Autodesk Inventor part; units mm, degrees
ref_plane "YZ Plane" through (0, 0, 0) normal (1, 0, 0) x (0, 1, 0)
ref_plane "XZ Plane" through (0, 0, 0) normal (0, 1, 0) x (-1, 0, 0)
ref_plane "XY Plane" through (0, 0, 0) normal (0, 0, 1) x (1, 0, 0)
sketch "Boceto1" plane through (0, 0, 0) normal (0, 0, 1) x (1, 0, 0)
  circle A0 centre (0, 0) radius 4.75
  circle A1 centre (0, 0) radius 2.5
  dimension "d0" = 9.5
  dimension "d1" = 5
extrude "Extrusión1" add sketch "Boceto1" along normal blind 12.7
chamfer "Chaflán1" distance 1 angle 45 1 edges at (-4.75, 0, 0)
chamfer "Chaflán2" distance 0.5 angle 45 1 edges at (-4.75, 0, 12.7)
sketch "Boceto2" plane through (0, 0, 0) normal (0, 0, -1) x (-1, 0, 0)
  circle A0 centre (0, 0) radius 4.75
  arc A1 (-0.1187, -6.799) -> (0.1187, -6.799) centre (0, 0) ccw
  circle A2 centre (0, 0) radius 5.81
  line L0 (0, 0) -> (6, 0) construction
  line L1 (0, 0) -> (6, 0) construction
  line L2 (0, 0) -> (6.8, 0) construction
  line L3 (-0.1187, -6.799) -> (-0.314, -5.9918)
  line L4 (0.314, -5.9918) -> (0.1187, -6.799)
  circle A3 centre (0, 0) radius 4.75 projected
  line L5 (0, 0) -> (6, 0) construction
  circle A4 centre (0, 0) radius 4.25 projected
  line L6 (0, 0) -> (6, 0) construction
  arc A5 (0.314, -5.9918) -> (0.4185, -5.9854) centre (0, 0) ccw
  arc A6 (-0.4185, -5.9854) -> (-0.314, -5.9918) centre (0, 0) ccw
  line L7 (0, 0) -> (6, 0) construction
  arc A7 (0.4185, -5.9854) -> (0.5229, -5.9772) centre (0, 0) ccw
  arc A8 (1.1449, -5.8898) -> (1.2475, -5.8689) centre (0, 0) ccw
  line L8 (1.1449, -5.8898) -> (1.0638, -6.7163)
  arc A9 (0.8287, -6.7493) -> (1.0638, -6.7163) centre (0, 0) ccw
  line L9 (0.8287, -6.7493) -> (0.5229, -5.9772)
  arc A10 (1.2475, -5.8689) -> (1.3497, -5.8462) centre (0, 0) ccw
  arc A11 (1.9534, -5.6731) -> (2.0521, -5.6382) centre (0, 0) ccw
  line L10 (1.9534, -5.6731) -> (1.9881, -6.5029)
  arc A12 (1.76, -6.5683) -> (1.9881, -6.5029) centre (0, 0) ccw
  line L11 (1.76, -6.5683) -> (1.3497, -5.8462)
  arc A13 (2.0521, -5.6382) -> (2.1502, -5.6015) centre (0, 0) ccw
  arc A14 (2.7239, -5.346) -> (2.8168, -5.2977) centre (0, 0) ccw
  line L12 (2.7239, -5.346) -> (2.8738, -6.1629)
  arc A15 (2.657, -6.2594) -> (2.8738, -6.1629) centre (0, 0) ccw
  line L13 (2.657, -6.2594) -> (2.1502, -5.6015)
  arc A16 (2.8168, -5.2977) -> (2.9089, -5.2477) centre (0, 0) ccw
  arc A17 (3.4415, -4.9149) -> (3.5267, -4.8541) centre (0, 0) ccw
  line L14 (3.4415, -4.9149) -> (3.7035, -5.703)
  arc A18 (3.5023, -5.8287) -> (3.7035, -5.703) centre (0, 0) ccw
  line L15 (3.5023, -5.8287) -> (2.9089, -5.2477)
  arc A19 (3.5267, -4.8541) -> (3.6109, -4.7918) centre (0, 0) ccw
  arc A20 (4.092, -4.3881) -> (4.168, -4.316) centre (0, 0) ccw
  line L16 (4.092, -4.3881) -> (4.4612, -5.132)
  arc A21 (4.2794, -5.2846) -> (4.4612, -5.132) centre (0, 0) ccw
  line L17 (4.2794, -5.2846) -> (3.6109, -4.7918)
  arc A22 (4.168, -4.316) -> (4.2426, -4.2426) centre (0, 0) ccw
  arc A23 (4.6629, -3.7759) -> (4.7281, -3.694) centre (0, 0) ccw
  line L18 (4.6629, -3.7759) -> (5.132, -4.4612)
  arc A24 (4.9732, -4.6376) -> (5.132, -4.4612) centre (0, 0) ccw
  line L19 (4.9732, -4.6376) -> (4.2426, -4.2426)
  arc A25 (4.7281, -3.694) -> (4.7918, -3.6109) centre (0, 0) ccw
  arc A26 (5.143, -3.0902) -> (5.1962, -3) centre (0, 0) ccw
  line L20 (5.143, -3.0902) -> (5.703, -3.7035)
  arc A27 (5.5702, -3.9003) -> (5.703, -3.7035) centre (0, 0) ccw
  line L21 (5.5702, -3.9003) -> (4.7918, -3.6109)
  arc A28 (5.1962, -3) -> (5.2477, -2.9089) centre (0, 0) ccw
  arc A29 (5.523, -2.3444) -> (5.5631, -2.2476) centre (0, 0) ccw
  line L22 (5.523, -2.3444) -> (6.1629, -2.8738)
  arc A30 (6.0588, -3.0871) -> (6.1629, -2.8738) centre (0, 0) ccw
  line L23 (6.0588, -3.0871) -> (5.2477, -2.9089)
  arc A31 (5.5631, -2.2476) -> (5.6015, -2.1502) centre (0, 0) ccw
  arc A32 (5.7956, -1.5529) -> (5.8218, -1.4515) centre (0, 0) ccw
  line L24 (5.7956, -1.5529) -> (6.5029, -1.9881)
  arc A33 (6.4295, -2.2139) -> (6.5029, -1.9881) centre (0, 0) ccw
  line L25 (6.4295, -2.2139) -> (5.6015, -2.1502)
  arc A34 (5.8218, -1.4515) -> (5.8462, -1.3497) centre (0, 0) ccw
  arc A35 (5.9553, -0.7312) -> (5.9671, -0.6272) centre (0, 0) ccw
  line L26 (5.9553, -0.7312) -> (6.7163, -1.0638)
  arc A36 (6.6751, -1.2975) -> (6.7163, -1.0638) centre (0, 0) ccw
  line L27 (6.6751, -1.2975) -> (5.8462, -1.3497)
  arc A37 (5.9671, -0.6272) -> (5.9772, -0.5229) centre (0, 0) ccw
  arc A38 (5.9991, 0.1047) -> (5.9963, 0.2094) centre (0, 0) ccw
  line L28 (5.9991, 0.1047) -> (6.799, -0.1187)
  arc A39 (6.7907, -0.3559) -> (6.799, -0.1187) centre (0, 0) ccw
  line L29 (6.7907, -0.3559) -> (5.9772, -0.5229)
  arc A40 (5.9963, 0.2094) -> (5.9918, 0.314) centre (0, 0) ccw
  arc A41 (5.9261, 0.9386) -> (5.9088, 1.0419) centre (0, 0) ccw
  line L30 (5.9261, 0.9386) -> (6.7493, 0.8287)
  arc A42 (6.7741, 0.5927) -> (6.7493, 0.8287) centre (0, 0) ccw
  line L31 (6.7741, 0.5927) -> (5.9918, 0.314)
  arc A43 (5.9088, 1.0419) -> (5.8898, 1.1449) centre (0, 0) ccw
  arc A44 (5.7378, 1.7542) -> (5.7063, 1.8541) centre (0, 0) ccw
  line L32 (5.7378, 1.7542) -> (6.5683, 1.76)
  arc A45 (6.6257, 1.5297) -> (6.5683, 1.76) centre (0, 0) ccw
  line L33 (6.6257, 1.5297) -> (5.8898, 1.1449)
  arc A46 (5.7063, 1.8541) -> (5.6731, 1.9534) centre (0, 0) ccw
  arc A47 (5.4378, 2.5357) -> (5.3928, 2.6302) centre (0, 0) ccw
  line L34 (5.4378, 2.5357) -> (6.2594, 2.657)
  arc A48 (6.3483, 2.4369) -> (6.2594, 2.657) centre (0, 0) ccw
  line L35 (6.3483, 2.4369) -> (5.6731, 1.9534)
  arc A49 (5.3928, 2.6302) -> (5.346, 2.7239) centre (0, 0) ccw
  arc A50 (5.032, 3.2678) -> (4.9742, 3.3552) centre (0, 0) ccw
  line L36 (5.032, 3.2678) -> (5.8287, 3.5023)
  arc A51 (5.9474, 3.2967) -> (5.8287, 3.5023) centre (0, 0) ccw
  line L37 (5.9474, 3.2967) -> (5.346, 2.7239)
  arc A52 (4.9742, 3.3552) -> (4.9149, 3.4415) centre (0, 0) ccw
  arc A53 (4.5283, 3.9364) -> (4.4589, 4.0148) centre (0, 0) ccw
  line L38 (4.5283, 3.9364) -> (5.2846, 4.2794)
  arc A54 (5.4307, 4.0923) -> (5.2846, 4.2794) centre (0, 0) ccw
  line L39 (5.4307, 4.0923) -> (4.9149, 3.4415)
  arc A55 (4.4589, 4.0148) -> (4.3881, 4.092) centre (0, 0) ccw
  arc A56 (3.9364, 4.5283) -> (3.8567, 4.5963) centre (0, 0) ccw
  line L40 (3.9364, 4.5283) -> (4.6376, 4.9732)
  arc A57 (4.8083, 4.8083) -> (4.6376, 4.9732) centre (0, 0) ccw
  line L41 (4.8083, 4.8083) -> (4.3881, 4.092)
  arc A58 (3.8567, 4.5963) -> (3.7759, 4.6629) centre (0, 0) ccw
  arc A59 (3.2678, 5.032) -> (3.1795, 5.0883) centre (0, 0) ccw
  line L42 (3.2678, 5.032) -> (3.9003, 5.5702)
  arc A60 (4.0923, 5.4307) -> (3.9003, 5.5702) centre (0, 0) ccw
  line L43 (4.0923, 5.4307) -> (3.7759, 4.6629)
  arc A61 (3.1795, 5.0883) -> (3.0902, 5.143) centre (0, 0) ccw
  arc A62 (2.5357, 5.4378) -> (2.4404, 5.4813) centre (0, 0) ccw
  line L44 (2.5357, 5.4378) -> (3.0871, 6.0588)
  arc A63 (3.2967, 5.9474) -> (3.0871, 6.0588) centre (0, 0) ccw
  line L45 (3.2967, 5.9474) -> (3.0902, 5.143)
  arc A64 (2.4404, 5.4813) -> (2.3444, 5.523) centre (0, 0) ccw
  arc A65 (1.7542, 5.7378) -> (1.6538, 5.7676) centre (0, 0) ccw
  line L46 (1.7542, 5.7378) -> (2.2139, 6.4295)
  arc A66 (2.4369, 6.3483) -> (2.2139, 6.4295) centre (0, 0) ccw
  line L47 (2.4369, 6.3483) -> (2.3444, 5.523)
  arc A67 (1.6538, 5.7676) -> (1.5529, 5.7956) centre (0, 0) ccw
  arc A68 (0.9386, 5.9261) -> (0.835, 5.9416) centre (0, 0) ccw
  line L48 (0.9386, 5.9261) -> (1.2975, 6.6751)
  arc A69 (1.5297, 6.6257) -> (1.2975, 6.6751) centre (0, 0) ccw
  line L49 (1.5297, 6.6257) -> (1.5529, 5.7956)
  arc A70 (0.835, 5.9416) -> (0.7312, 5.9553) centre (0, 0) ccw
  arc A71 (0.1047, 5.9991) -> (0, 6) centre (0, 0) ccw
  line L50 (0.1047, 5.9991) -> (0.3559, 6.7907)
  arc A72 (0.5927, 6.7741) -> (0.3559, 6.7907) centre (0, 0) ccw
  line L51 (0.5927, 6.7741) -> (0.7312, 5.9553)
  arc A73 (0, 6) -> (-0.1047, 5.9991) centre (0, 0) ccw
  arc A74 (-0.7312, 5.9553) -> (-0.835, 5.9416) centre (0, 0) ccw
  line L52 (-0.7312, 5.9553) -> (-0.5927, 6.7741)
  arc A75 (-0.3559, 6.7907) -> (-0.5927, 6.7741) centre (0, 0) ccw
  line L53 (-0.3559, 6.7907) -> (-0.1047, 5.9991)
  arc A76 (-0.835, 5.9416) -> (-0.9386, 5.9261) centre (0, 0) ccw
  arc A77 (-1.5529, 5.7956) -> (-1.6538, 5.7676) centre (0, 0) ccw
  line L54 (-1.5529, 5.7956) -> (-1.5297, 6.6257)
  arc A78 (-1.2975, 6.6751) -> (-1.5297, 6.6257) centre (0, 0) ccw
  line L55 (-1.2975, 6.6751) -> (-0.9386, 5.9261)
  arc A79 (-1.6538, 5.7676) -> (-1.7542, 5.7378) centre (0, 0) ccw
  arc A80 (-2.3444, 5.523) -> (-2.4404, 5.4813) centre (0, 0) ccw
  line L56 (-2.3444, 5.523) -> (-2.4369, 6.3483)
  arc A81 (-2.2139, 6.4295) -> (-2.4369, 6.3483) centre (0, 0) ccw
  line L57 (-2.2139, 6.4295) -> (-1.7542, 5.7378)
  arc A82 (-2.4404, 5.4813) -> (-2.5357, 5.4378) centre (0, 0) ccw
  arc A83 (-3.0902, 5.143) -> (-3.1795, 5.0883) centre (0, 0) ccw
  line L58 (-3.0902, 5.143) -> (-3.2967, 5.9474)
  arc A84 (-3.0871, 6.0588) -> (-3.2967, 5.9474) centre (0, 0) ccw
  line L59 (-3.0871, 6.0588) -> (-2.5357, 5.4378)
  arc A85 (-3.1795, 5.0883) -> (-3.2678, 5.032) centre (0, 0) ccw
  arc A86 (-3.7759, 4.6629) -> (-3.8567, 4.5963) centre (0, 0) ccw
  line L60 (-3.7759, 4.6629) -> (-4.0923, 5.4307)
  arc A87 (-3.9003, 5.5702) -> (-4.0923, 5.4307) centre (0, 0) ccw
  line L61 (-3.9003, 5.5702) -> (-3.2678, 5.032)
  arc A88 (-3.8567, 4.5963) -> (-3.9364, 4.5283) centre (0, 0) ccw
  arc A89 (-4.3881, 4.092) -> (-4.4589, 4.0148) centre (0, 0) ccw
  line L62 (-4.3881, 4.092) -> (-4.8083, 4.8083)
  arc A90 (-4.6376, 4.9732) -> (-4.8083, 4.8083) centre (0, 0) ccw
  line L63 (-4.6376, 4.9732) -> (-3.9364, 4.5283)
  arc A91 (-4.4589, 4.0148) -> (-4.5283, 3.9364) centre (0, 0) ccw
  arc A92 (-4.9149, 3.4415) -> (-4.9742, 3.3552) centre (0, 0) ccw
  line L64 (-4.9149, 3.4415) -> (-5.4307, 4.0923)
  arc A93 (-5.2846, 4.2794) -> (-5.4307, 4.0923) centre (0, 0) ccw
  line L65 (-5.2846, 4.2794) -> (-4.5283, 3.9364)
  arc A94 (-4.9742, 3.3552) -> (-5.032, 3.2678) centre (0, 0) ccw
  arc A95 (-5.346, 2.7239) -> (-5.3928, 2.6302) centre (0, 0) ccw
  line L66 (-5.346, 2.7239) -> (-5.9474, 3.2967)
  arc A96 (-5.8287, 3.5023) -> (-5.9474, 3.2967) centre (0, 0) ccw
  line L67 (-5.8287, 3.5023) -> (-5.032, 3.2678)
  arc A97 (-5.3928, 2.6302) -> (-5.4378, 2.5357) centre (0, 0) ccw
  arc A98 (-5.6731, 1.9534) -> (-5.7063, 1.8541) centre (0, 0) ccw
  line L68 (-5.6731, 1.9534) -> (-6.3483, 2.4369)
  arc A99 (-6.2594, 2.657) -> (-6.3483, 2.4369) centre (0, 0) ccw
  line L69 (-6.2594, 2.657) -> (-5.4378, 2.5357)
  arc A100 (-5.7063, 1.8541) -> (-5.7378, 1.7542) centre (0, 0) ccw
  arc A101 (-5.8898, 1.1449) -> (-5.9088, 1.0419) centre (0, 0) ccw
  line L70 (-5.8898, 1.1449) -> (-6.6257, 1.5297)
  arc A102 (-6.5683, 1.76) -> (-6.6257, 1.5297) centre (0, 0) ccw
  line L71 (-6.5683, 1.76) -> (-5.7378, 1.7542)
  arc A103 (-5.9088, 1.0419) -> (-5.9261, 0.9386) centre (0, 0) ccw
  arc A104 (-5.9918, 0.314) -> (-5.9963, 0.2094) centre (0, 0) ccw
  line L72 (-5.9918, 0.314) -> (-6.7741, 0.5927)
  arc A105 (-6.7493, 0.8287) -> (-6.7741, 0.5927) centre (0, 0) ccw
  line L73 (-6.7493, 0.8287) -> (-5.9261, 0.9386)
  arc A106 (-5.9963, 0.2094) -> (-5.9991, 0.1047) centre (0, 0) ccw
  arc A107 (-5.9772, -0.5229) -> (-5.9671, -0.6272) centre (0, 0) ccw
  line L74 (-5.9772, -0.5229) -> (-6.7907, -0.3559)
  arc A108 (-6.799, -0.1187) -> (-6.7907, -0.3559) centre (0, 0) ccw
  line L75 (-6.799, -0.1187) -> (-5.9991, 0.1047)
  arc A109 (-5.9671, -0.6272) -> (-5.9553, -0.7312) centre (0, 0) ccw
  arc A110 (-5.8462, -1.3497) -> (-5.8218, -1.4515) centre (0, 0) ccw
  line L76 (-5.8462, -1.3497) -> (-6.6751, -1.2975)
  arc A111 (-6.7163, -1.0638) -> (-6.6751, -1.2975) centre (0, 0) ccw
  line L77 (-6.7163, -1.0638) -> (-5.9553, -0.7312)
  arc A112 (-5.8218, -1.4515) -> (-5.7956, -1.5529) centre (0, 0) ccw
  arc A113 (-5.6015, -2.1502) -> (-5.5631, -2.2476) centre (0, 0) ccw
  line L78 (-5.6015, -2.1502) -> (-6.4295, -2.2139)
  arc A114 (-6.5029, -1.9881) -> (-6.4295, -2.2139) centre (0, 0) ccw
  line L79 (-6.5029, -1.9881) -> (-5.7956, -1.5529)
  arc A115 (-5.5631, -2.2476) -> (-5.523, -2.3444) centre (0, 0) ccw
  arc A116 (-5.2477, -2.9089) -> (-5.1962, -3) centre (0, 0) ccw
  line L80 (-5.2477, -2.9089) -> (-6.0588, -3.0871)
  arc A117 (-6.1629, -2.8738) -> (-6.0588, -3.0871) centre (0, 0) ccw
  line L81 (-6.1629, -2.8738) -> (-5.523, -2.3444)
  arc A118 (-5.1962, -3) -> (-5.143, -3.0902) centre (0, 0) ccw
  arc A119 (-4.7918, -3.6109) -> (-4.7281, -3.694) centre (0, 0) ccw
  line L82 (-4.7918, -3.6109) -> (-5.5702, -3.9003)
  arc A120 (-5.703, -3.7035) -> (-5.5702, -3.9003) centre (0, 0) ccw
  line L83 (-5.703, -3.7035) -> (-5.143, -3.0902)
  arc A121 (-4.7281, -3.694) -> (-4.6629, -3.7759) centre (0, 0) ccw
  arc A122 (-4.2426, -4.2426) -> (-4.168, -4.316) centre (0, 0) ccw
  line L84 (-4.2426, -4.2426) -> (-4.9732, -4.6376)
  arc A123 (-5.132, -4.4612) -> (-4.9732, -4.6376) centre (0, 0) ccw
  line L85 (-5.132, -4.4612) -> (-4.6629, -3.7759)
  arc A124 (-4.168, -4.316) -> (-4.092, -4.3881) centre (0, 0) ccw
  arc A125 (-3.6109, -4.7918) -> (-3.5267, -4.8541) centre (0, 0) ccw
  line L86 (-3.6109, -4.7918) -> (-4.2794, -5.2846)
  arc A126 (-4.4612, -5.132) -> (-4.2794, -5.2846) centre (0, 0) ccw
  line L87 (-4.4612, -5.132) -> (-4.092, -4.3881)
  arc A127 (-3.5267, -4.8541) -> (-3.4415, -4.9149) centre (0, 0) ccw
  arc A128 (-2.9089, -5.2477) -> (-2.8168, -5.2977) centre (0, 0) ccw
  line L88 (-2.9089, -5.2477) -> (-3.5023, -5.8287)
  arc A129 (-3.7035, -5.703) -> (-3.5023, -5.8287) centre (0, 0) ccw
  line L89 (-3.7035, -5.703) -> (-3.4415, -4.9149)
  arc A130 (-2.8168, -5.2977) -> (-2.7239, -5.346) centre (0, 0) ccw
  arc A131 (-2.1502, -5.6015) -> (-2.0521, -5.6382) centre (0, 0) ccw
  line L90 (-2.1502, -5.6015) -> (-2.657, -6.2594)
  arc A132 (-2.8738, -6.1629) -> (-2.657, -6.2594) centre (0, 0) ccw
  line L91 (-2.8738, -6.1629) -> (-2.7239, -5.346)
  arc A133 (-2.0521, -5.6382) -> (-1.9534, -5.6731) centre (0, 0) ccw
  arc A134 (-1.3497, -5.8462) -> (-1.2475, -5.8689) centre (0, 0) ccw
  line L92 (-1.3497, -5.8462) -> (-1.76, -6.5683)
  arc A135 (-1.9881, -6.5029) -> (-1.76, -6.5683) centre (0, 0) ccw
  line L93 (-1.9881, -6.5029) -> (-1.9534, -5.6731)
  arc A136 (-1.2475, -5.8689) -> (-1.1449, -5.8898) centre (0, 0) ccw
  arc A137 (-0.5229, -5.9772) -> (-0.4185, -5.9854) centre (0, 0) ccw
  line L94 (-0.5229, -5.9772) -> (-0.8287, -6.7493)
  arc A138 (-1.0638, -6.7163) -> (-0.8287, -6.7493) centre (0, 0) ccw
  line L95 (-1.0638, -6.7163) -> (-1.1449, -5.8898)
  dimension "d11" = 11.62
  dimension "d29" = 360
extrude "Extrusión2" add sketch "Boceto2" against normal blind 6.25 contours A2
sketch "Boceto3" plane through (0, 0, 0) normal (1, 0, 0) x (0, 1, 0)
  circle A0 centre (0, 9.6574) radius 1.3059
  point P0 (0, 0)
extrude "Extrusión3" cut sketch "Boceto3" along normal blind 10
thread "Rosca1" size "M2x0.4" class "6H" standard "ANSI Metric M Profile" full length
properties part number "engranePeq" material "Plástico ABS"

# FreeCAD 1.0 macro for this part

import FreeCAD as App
import Part
import Sketcher
from FreeCAD import Vector
Q = App.Units.Quantity


def edges_at(feature, points):
    """Names of the edges that pass closest to the given points."""
    edges = feature.Shape.Edges
    near = lambda p: min(range(len(edges)), key=lambda i: edges[i].distToShape(Part.Vertex(*p))[0])
    return sorted({f"Edge{near(p) + 1}" for p in points})

doc = App.newDocument("Part")
body = doc.addObject("PartDesign::Body", "Body")

sketch1 = body.newObject("Sketcher::SketchObject", "Sketch")
sketch1.AttachmentSupport = (doc.getObject("XY_Plane"), [""])
sketch1.MapMode = "FlatFace"
sketch1.addGeometry([
    Part.Circle(Vector(0, 0, 0), Vector(0, 0, 1), 4.8),
    Part.Circle(Vector(0, 0, 0), Vector(0, 0, 1), 2.5),
], False)
sketch1.addConstraint([
    Sketcher.Constraint("Coincident", 0, 3, -1, 1),
    Sketcher.Constraint("Coincident", 1, 3, -1, 1),
    Sketcher.Constraint("Diameter", 1, Q("5 mm")),
    Sketcher.Constraint("Diameter", 0, Q("9.5 mm")),
])
pad1 = body.newObject("PartDesign::Pad", "Pad")
pad1.Profile = sketch1
pad1.Length = 12.7
doc.recompute()

chamfer = body.newObject("PartDesign::Chamfer", "Chamfer")
chamfer.Base = (pad1, edges_at(pad1, [(-4.75, 0, 0)]))
chamfer.Size = 1
doc.recompute()

chamfer2 = body.newObject("PartDesign::Chamfer", "Chamfer001")
chamfer2.Base = (chamfer, edges_at(chamfer, [(-4.75, 0, 12.7)]))
chamfer2.Size = 0.5

sketch2 = body.newObject("Sketcher::SketchObject", "Sketch001")
sketch2.AttachmentSupport = (doc.getObject("XY_Plane"), [""])
sketch2.MapMode = "FlatFace"
sketch2.addGeometry([
    Part.Circle(Vector(0, 0, 0), Vector(0, 0, 1), 5.8),
    Part.Circle(Vector(0, 0, 0), Vector(0, 0, 1), 4.8),
], False)
sketch2.addConstraint([
    Sketcher.Constraint("Coincident", 0, 3, -1, 1),
    Sketcher.Constraint("Coincident", 1, 3, -1, 1),
    Sketcher.Constraint("Diameter", 0, Q("11.62 mm")),
    Sketcher.Constraint("Diameter", 1, Q("9.5 mm")),
])
pad2 = body.newObject("PartDesign::Pad", "Pad001")
pad2.Profile = sketch2
pad2.Length = 6.25

sketch3 = body.newObject("Sketcher::SketchObject", "Sketch002")
sketch3.AttachmentSupport = (doc.getObject("YZ_Plane"), [""])
sketch3.MapMode = "FlatFace"
sketch3.addGeometry(Part.Circle(Vector(0, 9.7, 0), Vector(0, 0, 1), 1.3), False)
sketch3.addConstraint([
    Sketcher.Constraint("PointOnObject", 0, 3, -2),
    Sketcher.Constraint("Diameter", 0, Q("2.6118 mm")),
    Sketcher.Constraint("DistanceY", -1, 1, 0, 3, Q("9.6574 mm")),
])
pocket1 = body.newObject("PartDesign::Pocket", "Pocket")
pocket1.Profile = sketch3
pocket1.Length = 10
pocket1.Reversed = True

doc.recompute()
